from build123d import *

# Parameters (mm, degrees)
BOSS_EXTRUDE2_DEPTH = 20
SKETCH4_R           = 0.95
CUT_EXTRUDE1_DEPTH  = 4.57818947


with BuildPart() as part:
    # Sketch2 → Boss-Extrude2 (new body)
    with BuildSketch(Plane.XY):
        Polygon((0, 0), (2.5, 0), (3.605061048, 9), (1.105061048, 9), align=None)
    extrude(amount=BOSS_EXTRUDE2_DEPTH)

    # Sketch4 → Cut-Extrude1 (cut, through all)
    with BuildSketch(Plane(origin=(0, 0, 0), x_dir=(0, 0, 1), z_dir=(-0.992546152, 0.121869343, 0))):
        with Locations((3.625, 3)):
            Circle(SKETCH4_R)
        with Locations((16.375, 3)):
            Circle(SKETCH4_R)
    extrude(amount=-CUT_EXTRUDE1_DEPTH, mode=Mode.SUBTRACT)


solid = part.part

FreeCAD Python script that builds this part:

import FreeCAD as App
import Part
import Sketcher
Q = App.Units.Quantity


def add_polygon(sketch, points):
    """Adds a closed chain of lines whose ends are joined by coincident constraints."""
    first, n = sketch.GeometryCount, len(points)
    for a, b in zip(points, points[1:] + points[:1]):
        sketch.addGeometry(Part.LineSegment(App.Vector(*a, 0), App.Vector(*b, 0)), False)
    for i in range(n):
        sketch.addConstraint(Sketcher.Constraint("Coincident", first + i, 2, first + (i + 1) % n, 1))

doc = App.newDocument("Part")
body = doc.addObject("PartDesign::Body", "Body")

# Sketch on XY plane
sketch1 = body.newObject("Sketcher::SketchObject", "Sketch")
sketch1.AttachmentSupport = (doc.getObject("XY_Plane"), [""])
sketch1.MapMode = "FlatFace"
add_polygon(sketch1, [(0, 0), (2.5, 0), (3.6, 9), (1.1, 9)])  # lines 0-3
sketch1.addConstraint(Sketcher.Constraint("Horizontal", 0))
sketch1.addConstraint(Sketcher.Constraint("Horizontal", 2))
sketch1.addConstraint(Sketcher.Constraint("Coincident", 3, 2, -1, 1))
sketch1.addConstraint(Sketcher.Constraint("Parallel", 1, 3))
sketch1.addConstraint(Sketcher.Constraint("Angle", 1, Q("83 deg")))
sketch1.addConstraint(Sketcher.Constraint("DistanceX", 0, 1, 0, 2, Q("2.5 mm")))
sketch1.addConstraint(Sketcher.Constraint("DistanceY", -1, 1, 1, 2, Q("9 mm")))
pad1 = body.newObject("PartDesign::Pad", "Pad")
pad1.Profile = sketch1
pad1.Length = 20

# Sketch on an angled plane
sketch2 = body.newObject("Sketcher::SketchObject", "Sketch001")
sketch2.Placement = App.Placement(App.Vector(0, 0, 0), App.Rotation(App.Vector(0, 0, 1), App.Vector(0.121869343, 0.992546152, 0), App.Vector(-0.992546152, 0.121869343, 0), "ZXY"))
sketch2.addGeometry(Part.Circle(App.Vector(3.6, 3, 0), App.Vector(0, 0, 1), 0.9), False)
sketch2.addGeometry(Part.Circle(App.Vector(16.4, 3, 0), App.Vector(0, 0, 1), 0.9), False)
sketch2.addConstraint(Sketcher.Constraint("Equal", 0, 1))
sketch2.addConstraint(Sketcher.Constraint("Horizontal", 0, 3, 1, 3))
sketch2.addConstraint(Sketcher.Constraint("Diameter", 0, Q("1.9 mm")))
sketch2.addConstraint(Sketcher.Constraint("DistanceY", -1, 1, 0, 3, Q("3 mm")))
sketch2.addConstraint(Sketcher.Constraint("DistanceX", 0, 3, 1, 3, Q("12.75 mm")))
sketch2.addConstraint(Sketcher.Constraint("DistanceX", -1, 1, 0, 3, Q("3.625 mm")))
pocket1 = body.newObject("PartDesign::Pocket", "Pocket")
pocket1.Profile = sketch2
pocket1.Type = "ThroughAll"

doc.recompute()
